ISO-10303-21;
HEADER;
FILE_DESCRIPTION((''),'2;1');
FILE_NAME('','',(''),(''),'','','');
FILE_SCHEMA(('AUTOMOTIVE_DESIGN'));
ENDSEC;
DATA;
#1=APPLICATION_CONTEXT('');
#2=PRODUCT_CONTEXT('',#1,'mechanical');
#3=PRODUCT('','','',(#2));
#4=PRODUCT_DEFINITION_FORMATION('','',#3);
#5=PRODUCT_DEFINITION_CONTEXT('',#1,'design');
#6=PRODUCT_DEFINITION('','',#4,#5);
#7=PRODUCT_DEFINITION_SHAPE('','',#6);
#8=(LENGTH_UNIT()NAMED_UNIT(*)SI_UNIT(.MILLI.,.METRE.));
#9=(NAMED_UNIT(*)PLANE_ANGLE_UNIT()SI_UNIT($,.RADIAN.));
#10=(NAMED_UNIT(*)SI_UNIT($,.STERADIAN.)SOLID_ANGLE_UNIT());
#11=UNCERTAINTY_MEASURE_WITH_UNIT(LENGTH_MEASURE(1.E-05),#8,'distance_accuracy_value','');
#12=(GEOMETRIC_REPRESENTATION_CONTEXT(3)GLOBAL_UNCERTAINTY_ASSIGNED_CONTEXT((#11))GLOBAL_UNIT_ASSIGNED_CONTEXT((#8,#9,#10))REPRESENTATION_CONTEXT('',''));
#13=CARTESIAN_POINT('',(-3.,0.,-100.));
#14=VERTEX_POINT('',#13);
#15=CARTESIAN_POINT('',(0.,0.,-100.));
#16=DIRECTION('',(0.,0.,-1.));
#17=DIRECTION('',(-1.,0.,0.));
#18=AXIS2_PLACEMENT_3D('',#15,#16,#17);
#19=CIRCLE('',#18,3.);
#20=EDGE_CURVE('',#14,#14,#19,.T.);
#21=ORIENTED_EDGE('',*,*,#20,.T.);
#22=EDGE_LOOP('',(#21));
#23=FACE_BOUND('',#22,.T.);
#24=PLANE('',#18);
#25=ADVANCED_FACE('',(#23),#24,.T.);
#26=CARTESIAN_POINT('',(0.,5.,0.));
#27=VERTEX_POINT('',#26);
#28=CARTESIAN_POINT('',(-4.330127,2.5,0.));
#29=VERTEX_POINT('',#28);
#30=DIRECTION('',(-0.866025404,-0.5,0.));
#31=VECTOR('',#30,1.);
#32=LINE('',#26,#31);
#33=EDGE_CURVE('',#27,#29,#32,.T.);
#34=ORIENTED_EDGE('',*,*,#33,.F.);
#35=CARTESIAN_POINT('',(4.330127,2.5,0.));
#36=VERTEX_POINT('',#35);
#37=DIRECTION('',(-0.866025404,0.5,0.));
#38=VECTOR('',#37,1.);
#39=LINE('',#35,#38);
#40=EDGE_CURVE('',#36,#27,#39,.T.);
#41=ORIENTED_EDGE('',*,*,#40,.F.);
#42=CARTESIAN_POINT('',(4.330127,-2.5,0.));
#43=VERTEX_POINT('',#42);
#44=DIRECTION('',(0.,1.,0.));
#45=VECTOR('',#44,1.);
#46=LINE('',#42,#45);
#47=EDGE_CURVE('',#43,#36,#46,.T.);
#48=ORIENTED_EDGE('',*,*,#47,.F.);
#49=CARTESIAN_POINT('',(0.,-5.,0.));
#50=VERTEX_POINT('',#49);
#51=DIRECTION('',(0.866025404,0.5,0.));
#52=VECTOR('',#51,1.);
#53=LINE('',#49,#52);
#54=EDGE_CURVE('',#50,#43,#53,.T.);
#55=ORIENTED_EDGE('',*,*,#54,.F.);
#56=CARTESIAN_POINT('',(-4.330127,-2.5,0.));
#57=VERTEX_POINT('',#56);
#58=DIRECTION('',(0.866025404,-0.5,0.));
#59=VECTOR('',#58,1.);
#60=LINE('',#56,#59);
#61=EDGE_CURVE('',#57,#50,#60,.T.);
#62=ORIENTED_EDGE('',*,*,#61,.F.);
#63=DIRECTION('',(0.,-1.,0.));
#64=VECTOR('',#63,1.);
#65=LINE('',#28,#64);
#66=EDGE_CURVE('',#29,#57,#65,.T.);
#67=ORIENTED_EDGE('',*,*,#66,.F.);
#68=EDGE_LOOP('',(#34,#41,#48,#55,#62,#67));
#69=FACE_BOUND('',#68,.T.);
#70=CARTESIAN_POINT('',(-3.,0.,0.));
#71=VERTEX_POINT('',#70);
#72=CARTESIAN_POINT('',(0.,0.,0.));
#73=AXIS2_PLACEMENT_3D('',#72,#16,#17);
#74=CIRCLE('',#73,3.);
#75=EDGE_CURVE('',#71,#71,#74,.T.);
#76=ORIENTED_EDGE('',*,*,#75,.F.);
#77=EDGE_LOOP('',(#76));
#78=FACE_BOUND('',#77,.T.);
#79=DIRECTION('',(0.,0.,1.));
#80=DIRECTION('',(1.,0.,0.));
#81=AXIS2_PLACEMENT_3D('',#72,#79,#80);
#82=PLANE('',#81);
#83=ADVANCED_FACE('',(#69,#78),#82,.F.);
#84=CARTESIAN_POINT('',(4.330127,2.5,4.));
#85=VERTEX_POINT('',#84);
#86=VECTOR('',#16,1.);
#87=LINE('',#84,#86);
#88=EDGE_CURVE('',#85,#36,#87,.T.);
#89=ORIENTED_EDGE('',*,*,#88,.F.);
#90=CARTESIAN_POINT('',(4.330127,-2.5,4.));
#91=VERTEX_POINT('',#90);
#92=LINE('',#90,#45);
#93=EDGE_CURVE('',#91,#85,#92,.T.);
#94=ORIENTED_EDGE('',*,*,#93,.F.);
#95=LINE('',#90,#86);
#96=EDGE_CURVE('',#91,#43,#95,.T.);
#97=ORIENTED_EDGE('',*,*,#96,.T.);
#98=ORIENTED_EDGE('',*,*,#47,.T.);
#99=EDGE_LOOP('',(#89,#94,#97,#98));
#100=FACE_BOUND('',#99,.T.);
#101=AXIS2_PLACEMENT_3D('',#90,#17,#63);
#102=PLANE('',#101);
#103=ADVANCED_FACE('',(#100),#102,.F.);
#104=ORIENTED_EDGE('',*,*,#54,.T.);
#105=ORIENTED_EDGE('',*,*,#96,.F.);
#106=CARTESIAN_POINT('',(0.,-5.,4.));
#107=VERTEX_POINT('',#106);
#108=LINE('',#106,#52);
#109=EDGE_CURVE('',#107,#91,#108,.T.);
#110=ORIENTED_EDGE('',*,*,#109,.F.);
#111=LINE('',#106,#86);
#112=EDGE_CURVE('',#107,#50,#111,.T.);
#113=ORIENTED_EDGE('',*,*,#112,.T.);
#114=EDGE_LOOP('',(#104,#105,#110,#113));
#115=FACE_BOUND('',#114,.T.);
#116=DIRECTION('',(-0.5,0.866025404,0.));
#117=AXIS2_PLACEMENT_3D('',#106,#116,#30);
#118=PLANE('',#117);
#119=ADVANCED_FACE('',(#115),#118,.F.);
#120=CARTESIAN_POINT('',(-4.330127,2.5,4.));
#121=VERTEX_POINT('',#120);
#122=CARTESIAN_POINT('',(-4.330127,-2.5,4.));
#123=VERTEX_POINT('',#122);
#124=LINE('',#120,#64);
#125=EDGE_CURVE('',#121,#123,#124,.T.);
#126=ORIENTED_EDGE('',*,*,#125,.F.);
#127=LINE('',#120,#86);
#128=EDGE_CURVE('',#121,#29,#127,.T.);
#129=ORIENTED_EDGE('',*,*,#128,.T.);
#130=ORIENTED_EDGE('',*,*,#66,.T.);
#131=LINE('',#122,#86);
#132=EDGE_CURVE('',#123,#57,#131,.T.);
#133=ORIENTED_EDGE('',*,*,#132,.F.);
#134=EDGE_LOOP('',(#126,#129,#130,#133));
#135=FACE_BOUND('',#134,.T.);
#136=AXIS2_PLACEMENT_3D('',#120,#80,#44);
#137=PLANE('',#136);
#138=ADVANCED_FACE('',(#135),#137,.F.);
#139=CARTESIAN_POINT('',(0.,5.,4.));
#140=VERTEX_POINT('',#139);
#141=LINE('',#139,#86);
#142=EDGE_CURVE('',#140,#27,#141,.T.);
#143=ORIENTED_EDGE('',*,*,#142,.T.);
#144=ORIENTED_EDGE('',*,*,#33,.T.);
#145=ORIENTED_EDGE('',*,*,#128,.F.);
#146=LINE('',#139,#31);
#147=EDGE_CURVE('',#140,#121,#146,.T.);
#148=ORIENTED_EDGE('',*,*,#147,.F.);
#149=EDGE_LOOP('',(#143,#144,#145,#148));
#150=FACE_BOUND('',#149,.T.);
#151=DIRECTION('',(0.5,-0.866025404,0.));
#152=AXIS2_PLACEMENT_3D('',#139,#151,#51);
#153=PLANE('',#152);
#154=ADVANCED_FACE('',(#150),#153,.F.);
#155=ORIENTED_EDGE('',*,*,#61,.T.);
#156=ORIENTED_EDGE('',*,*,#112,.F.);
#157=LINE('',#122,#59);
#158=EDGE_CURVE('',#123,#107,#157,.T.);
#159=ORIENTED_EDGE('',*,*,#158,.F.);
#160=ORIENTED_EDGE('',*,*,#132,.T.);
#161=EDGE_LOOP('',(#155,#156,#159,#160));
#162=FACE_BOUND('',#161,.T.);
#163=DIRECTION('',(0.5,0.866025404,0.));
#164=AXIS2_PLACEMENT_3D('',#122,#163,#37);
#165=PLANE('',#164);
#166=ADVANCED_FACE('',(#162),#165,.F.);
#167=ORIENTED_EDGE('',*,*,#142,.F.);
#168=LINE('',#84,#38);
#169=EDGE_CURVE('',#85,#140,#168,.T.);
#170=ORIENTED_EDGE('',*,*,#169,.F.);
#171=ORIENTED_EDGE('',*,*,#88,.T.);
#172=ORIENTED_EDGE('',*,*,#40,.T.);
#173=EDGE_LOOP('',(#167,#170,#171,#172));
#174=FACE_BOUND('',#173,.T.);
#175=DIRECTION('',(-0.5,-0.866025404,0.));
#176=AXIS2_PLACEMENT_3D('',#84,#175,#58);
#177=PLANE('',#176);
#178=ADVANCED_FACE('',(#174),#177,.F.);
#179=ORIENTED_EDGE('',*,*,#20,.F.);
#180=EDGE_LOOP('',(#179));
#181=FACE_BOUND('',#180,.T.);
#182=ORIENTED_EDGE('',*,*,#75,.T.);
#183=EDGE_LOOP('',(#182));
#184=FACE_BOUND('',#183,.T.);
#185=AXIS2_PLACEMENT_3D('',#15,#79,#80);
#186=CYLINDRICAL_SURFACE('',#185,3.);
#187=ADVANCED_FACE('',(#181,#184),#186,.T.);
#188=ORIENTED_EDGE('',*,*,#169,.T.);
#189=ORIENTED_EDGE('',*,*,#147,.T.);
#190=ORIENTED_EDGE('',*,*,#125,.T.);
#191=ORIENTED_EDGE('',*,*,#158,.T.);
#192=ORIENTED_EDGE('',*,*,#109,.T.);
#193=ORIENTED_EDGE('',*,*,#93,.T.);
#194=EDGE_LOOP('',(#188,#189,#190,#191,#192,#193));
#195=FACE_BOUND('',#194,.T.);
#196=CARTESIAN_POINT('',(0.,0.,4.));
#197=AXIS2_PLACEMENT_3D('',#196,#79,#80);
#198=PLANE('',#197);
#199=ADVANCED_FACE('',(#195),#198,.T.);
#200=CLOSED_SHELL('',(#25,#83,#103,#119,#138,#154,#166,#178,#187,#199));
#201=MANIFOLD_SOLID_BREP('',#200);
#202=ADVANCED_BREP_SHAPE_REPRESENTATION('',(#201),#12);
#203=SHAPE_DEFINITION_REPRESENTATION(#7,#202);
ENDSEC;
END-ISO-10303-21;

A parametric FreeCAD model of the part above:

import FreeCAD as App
import Part
import Sketcher
from FreeCAD import Vector
Q = App.Units.Quantity


def add_polygon(sketch, points):
    """Adds a closed chain of lines whose ends are joined by coincident constraints."""
    first, n = sketch.GeometryCount, len(points)
    for a, b in zip(points, points[1:] + points[:1]):
        sketch.addGeometry(Part.LineSegment(App.Vector(*a, 0), App.Vector(*b, 0)), False)
    for i in range(n):
        sketch.addConstraint(Sketcher.Constraint("Coincident", first + i, 2, first + (i + 1) % n, 1))

doc = App.newDocument("Part")
body = doc.addObject("PartDesign::Body", "Body")

# Sketch on XY plane
sketch1 = body.newObject("Sketcher::SketchObject", "Sketch")
sketch1.AttachmentSupport = (doc.getObject("XY_Plane"), [""])
sketch1.MapMode = "FlatFace"
add_polygon(sketch1, [(-4, 2), (-4, -2), (0, -5), (4, -2), (4, 2), (0, 5)])  # lines 0-5
sketch1.addConstraint(Sketcher.Constraint("Vertical", 0))
sketch1.addConstraint(Sketcher.Constraint("Vertical", 3))
sketch1.addConstraint(Sketcher.Constraint("Symmetric", 0, 2, 3, 2, -1, 1))
sketch1.addConstraint(Sketcher.Constraint("Symmetric", 1, 2, 4, 2, -1, 1))
sketch1.addConstraint(Sketcher.Constraint("PointOnObject", 1, 2, -2))
sketch1.addConstraint(Sketcher.Constraint("Parallel", 2, 5))
sketch1.addConstraint(Sketcher.Constraint("Horizontal", 0, 2, 2, 2))
sketch1.addConstraint(Sketcher.Constraint("DistanceY", 0, 2, 0, 1, Q("5 mm")))
sketch1.addConstraint(Sketcher.Constraint("Angle", 1, Q("-30 deg")))
sketch1.addConstraint(Sketcher.Constraint("Distance", 1, Q("5 mm")))
pad1 = body.newObject("PartDesign::Pad", "Pad")
pad1.Profile = sketch1
pad1.Length = 4

# Sketch on XY plane
sketch2 = body.newObject("Sketcher::SketchObject", "Sketch001")
sketch2.AttachmentSupport = (doc.getObject("XY_Plane"), [""])
sketch2.MapMode = "FlatFace"
sketch2.addGeometry(Part.Circle(Vector(0, 0, 0), Vector(0, 0, 1), 3), False)
sketch2.addConstraint(Sketcher.Constraint("Coincident", 0, 3, -1, 1))
sketch2.addConstraint(Sketcher.Constraint("Diameter", 0, Q("6 mm")))
pad2 = body.newObject("PartDesign::Pad", "Pad001")
pad2.Profile = sketch2
pad2.Length = 100
pad2.Reversed = True

doc.recompute()
